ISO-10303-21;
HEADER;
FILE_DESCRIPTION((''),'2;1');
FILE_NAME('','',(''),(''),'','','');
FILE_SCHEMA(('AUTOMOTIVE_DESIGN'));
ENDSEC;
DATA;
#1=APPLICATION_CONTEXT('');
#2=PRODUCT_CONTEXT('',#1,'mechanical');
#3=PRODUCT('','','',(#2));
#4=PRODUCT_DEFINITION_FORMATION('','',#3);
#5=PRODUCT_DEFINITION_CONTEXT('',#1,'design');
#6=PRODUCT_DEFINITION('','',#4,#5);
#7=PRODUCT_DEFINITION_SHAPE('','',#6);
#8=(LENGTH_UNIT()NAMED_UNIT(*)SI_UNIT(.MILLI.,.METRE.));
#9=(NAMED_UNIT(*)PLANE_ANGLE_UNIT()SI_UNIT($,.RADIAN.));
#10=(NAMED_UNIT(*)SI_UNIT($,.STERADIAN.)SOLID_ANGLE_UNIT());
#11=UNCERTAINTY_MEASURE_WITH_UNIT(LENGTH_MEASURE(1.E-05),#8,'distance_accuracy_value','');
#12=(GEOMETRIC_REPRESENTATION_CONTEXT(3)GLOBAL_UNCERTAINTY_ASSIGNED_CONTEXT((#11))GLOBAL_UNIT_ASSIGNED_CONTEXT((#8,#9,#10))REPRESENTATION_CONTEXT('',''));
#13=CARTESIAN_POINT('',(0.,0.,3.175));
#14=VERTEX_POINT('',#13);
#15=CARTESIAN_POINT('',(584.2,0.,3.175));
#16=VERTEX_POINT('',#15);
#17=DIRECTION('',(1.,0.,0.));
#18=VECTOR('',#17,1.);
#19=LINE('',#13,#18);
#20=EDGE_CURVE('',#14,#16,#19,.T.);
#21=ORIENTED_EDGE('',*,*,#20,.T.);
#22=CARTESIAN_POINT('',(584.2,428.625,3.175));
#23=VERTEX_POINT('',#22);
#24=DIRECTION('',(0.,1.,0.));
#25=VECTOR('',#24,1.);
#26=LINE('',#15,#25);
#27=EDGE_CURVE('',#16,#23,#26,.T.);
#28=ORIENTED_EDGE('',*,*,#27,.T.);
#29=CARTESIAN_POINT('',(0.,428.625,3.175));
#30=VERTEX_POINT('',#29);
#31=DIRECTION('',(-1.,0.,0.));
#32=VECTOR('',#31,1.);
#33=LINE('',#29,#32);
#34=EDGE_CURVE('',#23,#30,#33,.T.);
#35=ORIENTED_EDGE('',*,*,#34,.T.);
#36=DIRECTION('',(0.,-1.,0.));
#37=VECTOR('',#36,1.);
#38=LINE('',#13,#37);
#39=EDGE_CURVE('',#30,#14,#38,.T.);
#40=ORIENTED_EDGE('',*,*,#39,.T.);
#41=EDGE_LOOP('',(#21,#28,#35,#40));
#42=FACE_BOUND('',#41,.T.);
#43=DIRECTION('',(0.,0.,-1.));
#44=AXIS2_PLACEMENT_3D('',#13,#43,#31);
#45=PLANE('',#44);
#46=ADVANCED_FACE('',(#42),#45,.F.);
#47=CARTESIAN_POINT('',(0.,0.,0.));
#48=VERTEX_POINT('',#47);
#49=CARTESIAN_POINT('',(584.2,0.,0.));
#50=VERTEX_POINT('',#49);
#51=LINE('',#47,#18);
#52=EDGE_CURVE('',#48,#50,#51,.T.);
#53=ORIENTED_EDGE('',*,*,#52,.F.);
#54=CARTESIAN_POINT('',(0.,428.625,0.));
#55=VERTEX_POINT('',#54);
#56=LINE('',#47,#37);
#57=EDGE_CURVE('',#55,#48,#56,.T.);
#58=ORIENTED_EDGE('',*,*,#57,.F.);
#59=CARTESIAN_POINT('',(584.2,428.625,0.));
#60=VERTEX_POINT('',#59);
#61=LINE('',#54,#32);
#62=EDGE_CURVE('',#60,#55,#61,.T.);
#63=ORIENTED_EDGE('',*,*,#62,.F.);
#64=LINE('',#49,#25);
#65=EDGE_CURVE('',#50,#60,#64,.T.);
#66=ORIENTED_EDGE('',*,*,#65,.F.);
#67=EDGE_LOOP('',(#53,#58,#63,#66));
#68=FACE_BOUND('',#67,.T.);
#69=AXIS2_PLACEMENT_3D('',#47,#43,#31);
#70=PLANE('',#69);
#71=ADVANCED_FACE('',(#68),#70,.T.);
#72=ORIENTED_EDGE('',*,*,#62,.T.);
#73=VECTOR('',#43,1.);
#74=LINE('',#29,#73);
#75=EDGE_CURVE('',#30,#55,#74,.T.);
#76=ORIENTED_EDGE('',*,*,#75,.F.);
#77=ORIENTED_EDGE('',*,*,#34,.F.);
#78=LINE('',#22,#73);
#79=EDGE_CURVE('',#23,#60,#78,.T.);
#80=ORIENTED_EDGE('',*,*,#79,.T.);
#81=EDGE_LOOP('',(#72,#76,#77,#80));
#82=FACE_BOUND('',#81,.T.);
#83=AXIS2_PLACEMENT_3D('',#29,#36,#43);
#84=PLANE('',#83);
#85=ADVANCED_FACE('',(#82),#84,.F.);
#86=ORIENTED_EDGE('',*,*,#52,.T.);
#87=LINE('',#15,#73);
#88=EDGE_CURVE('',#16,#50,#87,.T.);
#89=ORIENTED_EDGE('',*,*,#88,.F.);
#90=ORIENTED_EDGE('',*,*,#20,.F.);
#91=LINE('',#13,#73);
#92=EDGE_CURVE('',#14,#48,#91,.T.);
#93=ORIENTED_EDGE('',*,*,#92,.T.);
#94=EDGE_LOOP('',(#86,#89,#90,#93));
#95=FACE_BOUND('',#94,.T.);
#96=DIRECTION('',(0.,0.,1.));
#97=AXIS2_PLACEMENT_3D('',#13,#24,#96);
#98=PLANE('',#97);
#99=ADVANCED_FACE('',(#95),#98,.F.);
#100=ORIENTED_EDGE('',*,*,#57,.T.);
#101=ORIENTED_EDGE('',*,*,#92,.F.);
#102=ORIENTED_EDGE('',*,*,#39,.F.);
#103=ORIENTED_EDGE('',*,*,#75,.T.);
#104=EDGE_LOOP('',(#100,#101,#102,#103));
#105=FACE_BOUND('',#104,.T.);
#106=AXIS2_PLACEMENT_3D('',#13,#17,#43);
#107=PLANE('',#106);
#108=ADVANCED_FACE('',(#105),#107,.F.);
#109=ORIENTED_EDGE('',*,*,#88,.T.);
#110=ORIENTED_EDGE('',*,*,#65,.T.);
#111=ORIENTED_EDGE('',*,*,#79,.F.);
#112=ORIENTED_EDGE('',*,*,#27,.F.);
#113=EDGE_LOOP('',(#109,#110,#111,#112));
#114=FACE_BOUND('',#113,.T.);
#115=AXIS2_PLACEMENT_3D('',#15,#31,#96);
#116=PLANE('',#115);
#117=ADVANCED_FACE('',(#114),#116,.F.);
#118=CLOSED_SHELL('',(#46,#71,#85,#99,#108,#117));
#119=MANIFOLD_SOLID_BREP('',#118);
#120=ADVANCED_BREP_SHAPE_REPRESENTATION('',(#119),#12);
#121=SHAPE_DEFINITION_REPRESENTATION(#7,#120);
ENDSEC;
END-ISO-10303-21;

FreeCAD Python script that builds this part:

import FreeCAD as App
import Part
import Sketcher

V = App.Vector
Q = App.Units.Quantity

doc = App.newDocument("Part")
params = doc.addObject("Spreadsheet::Sheet", "Params")
for row, (alias, value) in enumerate([
    ("sketch1_width", "23 in"),
    ("sketch1_height", "16.875 in"),
    ("pad1_length", "0.125 in"),
], start=1):
    params.set(f"A{row}", alias)
    params.set(f"B{row}", "=" + value)
    params.setAlias(f"B{row}", alias)

body = doc.addObject("PartDesign::Body", "Body")

# Sketch on XY plane
sketch1 = body.newObject("Sketcher::SketchObject", "Sketch")
sketch1.AttachmentSupport = (doc.getObject("XY_Plane"), [""])
sketch1.MapMode = "FlatFace"
sketch1.addGeometry(Part.LineSegment(V(0, 429, 0), V(0, 0, 0)), False)
sketch1.addGeometry(Part.LineSegment(V(0, 0, 0), V(584, 0, 0)), False)
sketch1.addGeometry(Part.LineSegment(V(584, 0, 0), V(584, 429, 0)), False)
sketch1.addGeometry(Part.LineSegment(V(584, 429, 0), V(0, 429, 0)), False)
sketch1.addConstraint(Sketcher.Constraint("Coincident", 0, 2, 1, 1))
sketch1.addConstraint(Sketcher.Constraint("Coincident", 1, 2, 2, 1))
sketch1.addConstraint(Sketcher.Constraint("Coincident", 2, 2, 3, 1))
sketch1.addConstraint(Sketcher.Constraint("Coincident", 3, 2, 0, 1))
sketch1.addConstraint(Sketcher.Constraint("Vertical", 0))
sketch1.addConstraint(Sketcher.Constraint("Horizontal", 1))
sketch1.addConstraint(Sketcher.Constraint("Vertical", 2))
sketch1.addConstraint(Sketcher.Constraint("Horizontal", 3))
sketch1.addConstraint(Sketcher.Constraint("Coincident", 0, 2, -1, 1))
sketch1.addConstraint(Sketcher.Constraint("DistanceX", 1, 1, 1, 2, Q("23 in")))
sketch1.addConstraint(Sketcher.Constraint("DistanceY", 0, 2, 0, 1, Q("16.875 in")))
sketch1.setExpression("Constraints[9]", "Params.sketch1_width")
sketch1.setExpression("Constraints[10]", "Params.sketch1_height")
pad1 = body.newObject("PartDesign::Pad", "Pad")
pad1.Profile = sketch1
pad1.setExpression("Length", "Params.pad1_length")

doc.recompute()
